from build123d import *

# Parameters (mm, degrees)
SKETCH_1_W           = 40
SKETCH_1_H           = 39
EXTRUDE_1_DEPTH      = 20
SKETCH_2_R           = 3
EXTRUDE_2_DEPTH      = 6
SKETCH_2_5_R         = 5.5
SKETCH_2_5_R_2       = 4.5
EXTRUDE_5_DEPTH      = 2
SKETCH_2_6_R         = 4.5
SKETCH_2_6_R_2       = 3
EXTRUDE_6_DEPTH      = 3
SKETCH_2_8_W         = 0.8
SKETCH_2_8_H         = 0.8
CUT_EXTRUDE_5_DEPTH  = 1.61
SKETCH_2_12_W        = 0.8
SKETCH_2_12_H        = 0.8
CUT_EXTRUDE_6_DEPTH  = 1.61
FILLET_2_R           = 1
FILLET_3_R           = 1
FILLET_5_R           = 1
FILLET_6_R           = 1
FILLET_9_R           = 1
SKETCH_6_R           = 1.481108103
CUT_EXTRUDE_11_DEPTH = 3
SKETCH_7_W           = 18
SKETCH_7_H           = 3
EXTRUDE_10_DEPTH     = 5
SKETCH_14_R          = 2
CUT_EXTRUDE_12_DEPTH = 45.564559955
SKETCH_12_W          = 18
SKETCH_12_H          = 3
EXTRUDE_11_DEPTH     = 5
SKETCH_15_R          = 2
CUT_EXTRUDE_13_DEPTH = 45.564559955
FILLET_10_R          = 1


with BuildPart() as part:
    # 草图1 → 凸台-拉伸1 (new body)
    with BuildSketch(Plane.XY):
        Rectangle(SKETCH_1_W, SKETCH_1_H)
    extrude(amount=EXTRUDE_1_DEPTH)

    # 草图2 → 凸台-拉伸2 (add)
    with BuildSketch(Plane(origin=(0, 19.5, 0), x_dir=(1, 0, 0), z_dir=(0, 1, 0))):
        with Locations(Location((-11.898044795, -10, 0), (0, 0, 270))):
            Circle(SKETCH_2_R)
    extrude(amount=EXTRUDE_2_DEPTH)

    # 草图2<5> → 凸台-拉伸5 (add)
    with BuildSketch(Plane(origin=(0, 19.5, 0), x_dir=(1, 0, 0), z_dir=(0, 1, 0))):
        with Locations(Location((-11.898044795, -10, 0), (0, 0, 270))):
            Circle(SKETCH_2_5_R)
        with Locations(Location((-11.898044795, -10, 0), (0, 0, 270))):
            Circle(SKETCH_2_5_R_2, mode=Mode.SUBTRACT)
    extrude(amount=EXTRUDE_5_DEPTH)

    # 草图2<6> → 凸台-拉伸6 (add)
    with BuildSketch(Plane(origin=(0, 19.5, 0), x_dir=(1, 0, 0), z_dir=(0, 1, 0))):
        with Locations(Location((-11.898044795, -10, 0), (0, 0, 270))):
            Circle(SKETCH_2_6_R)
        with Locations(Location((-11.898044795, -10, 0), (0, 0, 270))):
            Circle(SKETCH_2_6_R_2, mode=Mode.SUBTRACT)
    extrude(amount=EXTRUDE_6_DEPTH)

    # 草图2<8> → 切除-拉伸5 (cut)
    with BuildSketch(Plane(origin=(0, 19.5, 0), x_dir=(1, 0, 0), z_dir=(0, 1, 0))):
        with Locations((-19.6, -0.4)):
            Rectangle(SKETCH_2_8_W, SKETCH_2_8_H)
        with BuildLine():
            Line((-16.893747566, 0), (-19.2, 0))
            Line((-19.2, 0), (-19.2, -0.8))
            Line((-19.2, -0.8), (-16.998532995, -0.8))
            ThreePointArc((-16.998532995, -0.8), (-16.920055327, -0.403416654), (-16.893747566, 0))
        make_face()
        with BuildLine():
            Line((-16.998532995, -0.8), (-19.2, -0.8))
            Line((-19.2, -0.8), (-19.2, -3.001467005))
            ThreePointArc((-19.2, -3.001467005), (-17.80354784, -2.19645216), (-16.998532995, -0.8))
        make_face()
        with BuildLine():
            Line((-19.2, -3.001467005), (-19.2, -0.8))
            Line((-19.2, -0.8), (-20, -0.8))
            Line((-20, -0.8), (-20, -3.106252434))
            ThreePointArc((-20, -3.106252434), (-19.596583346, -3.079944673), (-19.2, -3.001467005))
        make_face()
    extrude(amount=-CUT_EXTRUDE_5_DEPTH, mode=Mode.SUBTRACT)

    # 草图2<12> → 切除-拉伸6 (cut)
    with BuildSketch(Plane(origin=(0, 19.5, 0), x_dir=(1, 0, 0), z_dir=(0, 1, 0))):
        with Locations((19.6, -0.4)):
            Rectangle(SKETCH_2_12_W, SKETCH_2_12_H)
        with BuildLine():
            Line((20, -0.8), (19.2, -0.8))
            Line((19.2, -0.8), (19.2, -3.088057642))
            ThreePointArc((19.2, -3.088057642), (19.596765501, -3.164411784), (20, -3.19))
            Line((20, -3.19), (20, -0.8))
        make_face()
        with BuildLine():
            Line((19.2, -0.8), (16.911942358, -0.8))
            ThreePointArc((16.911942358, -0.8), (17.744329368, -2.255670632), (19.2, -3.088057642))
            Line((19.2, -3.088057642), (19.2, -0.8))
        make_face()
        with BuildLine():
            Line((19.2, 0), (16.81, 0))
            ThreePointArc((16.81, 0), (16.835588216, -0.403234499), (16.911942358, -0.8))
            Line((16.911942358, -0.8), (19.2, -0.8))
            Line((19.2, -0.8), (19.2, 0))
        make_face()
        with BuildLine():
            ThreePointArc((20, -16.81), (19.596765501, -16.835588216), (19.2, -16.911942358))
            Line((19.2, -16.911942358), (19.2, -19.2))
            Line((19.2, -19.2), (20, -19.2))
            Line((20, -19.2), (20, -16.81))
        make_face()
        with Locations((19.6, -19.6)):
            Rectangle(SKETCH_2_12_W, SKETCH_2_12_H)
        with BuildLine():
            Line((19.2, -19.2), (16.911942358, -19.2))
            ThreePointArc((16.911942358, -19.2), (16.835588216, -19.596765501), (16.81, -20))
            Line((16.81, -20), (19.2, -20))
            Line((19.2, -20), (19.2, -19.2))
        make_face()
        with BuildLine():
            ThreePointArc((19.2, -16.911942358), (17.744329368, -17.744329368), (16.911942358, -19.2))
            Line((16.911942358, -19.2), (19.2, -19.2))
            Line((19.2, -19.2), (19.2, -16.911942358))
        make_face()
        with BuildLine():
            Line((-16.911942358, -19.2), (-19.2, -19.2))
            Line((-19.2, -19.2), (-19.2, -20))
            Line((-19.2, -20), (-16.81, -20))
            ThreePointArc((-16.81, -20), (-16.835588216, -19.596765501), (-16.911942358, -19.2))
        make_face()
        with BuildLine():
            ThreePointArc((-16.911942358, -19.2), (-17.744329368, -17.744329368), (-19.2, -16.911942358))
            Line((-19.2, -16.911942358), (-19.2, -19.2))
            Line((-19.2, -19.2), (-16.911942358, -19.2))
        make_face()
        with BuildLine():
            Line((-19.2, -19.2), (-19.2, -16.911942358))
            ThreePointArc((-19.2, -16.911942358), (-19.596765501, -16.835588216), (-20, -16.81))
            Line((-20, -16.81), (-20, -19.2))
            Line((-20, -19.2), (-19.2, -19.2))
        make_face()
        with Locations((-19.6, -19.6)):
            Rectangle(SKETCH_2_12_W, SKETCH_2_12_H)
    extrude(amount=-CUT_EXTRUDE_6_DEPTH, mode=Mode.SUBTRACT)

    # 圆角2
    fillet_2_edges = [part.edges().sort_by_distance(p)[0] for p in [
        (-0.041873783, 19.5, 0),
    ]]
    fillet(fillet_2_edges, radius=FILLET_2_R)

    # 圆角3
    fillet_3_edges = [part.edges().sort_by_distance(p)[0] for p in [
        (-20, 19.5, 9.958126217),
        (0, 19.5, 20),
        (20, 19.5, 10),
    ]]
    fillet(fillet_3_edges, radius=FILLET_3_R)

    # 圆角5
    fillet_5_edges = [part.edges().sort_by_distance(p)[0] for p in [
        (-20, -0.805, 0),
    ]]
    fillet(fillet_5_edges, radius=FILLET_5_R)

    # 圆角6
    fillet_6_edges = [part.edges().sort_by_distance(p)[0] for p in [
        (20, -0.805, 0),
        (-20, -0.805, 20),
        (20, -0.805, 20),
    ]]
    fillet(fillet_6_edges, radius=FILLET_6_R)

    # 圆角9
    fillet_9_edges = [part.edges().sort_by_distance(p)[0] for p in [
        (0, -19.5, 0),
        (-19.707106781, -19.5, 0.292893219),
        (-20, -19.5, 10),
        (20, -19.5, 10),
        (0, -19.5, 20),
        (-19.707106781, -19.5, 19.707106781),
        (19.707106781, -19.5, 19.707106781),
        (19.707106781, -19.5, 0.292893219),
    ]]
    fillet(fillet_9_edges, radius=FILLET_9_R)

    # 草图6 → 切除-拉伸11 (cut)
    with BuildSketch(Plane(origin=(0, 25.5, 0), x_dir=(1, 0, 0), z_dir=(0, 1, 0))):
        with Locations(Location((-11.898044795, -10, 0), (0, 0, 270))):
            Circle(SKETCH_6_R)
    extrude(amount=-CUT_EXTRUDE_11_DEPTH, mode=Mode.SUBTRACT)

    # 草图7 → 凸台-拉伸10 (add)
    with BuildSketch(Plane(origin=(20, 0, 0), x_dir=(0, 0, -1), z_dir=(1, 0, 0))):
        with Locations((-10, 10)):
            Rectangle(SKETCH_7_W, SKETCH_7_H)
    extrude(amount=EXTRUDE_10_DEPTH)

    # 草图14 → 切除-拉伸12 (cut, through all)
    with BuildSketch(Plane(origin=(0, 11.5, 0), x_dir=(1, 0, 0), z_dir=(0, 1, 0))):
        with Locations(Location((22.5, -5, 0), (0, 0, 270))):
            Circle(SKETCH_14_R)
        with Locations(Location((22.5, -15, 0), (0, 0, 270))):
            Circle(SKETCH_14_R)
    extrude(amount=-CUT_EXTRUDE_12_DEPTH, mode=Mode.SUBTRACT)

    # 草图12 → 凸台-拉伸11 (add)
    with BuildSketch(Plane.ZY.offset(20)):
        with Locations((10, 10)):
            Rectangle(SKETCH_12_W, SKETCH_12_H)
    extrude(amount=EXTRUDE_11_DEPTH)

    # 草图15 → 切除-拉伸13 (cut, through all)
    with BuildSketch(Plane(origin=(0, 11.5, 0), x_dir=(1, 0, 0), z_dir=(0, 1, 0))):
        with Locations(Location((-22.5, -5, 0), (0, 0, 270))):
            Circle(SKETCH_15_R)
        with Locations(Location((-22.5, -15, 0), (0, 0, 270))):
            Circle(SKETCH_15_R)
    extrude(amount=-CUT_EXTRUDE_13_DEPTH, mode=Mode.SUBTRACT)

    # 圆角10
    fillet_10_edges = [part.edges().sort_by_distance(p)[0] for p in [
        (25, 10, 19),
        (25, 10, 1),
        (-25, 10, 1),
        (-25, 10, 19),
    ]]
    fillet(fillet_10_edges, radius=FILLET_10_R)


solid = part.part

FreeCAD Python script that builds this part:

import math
import FreeCAD as App
import Part
import Sketcher


def edges_at(feature, points):
    """Names of the edges that pass closest to the given points."""
    edges = feature.Shape.Edges
    near = lambda p: min(range(len(edges)), key=lambda i: edges[i].distToShape(Part.Vertex(*p))[0])
    return sorted({f"Edge{near(p) + 1}" for p in points})

doc = App.newDocument("Part")
params = doc.addObject("Spreadsheet::Sheet", "Params")
for row, (alias, value) in enumerate([
    ("sketch1_width", "40 mm"),
    ("sketch1_height", "39 mm"),
    ("pad1_length", "20 mm"),
    ("sketch2_diameter", "6 mm"),
    ("pad2_length", "6 mm"),
    ("sketch3_diameter", "11 mm"),
    ("sketch3_diameter2", "9 mm"),
    ("pad3_length", "2 mm"),
    ("sketch4_diameter", "9 mm"),
    ("sketch4_diameter2", "6 mm"),
    ("pad4_length", "3 mm"),
    ("pocket1_length", "1.61 mm"),
    ("sketch6_radius", "3.19 mm"),
    ("pocket2_length", "1.61 mm"),
    ("fillet_radius", "1 mm"),
    ("fillet2_radius", "1 mm"),
    ("fillet3_radius", "1 mm"),
    ("fillet4_radius", "1 mm"),
    ("fillet5_radius", "1 mm"),
    ("pocket3_length", "3 mm"),
    ("sketch8_width", "3 mm"),
    ("sketch8_height", "18 mm"),
    ("pad5_length", "5 mm"),
    ("sketch9_diameter", "4 mm"),
    ("sketch10_width", "3 mm"),
    ("sketch10_height", "18 mm"),
    ("pad6_length", "5 mm"),
    ("sketch11_diameter", "4 mm"),
    ("fillet6_radius", "1 mm"),
], start=1):
    params.set(f"A{row}", alias)
    params.set(f"B{row}", "=" + value)
    params.setAlias(f"B{row}", alias)

body = doc.addObject("PartDesign::Body", "Body")

# Sketch on XY plane
sketch1 = body.newObject("Sketcher::SketchObject", "Sketch")
sketch1.AttachmentSupport = (doc.getObject("XY_Plane"), [""])
sketch1.MapMode = "FlatFace"
sketch1.addGeometry(Part.LineSegment(App.Vector(-20, 20, 0), App.Vector(-20, -20, 0)), False)
sketch1.addGeometry(Part.LineSegment(App.Vector(-20, -20, 0), App.Vector(20, -20, 0)), False)
sketch1.addGeometry(Part.LineSegment(App.Vector(20, -20, 0), App.Vector(20, 20, 0)), False)
sketch1.addGeometry(Part.LineSegment(App.Vector(20, 20, 0), App.Vector(-20, 20, 0)), False)
sketch1.addConstraint(Sketcher.Constraint("Coincident", 0, 2, 1, 1))
sketch1.addConstraint(Sketcher.Constraint("Coincident", 1, 2, 2, 1))
sketch1.addConstraint(Sketcher.Constraint("Coincident", 2, 2, 3, 1))
sketch1.addConstraint(Sketcher.Constraint("Coincident", 3, 2, 0, 1))
sketch1.addConstraint(Sketcher.Constraint("Vertical", 0))
sketch1.addConstraint(Sketcher.Constraint("Horizontal", 1))
sketch1.addConstraint(Sketcher.Constraint("Vertical", 2))
sketch1.addConstraint(Sketcher.Constraint("Horizontal", 3))
sketch1.addConstraint(Sketcher.Constraint("Symmetric", 0, 2, 2, 2, -1, 1))
sketch1.addConstraint(Sketcher.Constraint("DistanceX", 1, 1, 1, 2, 40.0))
sketch1.addConstraint(Sketcher.Constraint("DistanceY", 0, 2, 0, 1, 39.0))
sketch1.setExpression("Constraints[9]", "Params.sketch1_width")
sketch1.setExpression("Constraints[10]", "Params.sketch1_height")
pad1 = body.newObject("PartDesign::Pad", "Pad")
pad1.Profile = sketch1
pad1.setExpression("Length", "Params.pad1_length")

# Sketch on XZ plane
sketch2 = body.newObject("Sketcher::SketchObject", "Sketch001")
sketch2.AttachmentSupport = (doc.getObject("XZ_Plane"), [""])
sketch2.MapMode = "FlatFace"
sketch2.AttachmentOffset = App.Placement(App.Vector(0, 0, -19.5), App.Rotation())
sketch2.addGeometry(Part.Circle(App.Vector(-11.9, 10, 0), App.Vector(0, 0, 1), 3), False)
sketch2.addConstraint(Sketcher.Constraint("Diameter", 0, 6.0))
sketch2.addConstraint(Sketcher.Constraint("DistanceY", -1, 1, 0, 3, 10.0))
sketch2.addConstraint(Sketcher.Constraint("DistanceX", 0, 3, -1, 1, 11.898045))
sketch2.setExpression("Constraints[0]", "Params.sketch2_diameter")
pad2 = body.newObject("PartDesign::Pad", "Pad001")
pad2.Profile = sketch2
pad2.setExpression("Length", "Params.pad2_length")
pad2.Reversed = True

# Sketch on XZ plane
sketch3 = body.newObject("Sketcher::SketchObject", "Sketch002")
sketch3.AttachmentSupport = (doc.getObject("XZ_Plane"), [""])
sketch3.MapMode = "FlatFace"
sketch3.AttachmentOffset = App.Placement(App.Vector(0, 0, -19.5), App.Rotation())
sketch3.addGeometry(Part.Circle(App.Vector(-11.9, 10, 0), App.Vector(0, 0, 1), 5.5), False)
sketch3.addGeometry(Part.Circle(App.Vector(-11.9, 10, 0), App.Vector(0, 0, 1), 4.5), False)
sketch3.addConstraint(Sketcher.Constraint("Coincident", 1, 3, 0, 3))
sketch3.addConstraint(Sketcher.Constraint("Diameter", 0, 11.0))
sketch3.addConstraint(Sketcher.Constraint("Diameter", 1, 9.0))
sketch3.addConstraint(Sketcher.Constraint("DistanceY", -1, 1, 0, 3, 10.0))
sketch3.addConstraint(Sketcher.Constraint("DistanceX", 0, 3, -1, 1, 11.898045))
sketch3.setExpression("Constraints[1]", "Params.sketch3_diameter")
sketch3.setExpression("Constraints[2]", "Params.sketch3_diameter2")
pad3 = body.newObject("PartDesign::Pad", "Pad002")
pad3.Profile = sketch3
pad3.setExpression("Length", "Params.pad3_length")
pad3.Reversed = True

# Sketch on XZ plane
sketch4 = body.newObject("Sketcher::SketchObject", "Sketch003")
sketch4.AttachmentSupport = (doc.getObject("XZ_Plane"), [""])
sketch4.MapMode = "FlatFace"
sketch4.AttachmentOffset = App.Placement(App.Vector(0, 0, -19.5), App.Rotation())
sketch4.addGeometry(Part.Circle(App.Vector(-11.9, 10, 0), App.Vector(0, 0, 1), 4.5), False)
sketch4.addGeometry(Part.Circle(App.Vector(-11.9, 10, 0), App.Vector(0, 0, 1), 3), False)
sketch4.addConstraint(Sketcher.Constraint("Coincident", 1, 3, 0, 3))
sketch4.addConstraint(Sketcher.Constraint("Diameter", 0, 9.0))
sketch4.addConstraint(Sketcher.Constraint("Diameter", 1, 6.0))
sketch4.addConstraint(Sketcher.Constraint("DistanceY", -1, 1, 0, 3, 10.0))
sketch4.addConstraint(Sketcher.Constraint("DistanceX", 0, 3, -1, 1, 11.898045))
sketch4.setExpression("Constraints[1]", "Params.sketch4_diameter")
sketch4.setExpression("Constraints[2]", "Params.sketch4_diameter2")
pad4 = body.newObject("PartDesign::Pad", "Pad003")
pad4.Profile = sketch4
pad4.setExpression("Length", "Params.pad4_length")
pad4.Reversed = True

# Sketch on XZ plane
sketch5 = body.newObject("Sketcher::SketchObject", "Sketch004")
sketch5.AttachmentSupport = (doc.getObject("XZ_Plane"), [""])
sketch5.MapMode = "FlatFace"
sketch5.AttachmentOffset = App.Placement(App.Vector(0, 0, -19.5), App.Rotation())
sketch5.addGeometry(Part.LineSegment(App.Vector(-20, 0, 0), App.Vector(-20, 3.1, 0)), False)
sketch5.addGeometry(Part.ArcOfCircle(Part.Circle(App.Vector(-20, 0, 0), App.Vector(0, 0, 1), 3.1), math.radians(75.08), math.radians(90)), False)
sketch5.addGeometry(Part.ArcOfCircle(Part.Circle(App.Vector(-20, 0, 0), App.Vector(0, 0, 1), 3.1), math.radians(15), math.radians(75)), False)
sketch5.addGeometry(Part.ArcOfCircle(Part.Circle(App.Vector(-20, 0, 0), App.Vector(0, 0, 1), 3.1), math.radians(0), math.radians(14.92)), False)
sketch5.addGeometry(Part.LineSegment(App.Vector(-16.9, 0, 0), App.Vector(-20, 0, 0)), False)
sketch5.addConstraint(Sketcher.Constraint("Coincident", 0, 2, 1, 2))
sketch5.addConstraint(Sketcher.Constraint("Tangent", 1, 1, 2, 2))
sketch5.addConstraint(Sketcher.Constraint("Tangent", 2, 1, 3, 2))
sketch5.addConstraint(Sketcher.Constraint("Coincident", 3, 1, 4, 1))
sketch5.addConstraint(Sketcher.Constraint("Coincident", 4, 2, 0, 1))
sketch5.addConstraint(Sketcher.Constraint("Vertical", 0))
sketch5.addConstraint(Sketcher.Constraint("Horizontal", 4))
sketch5.addConstraint(Sketcher.Constraint("Coincident", 3, 3, 1, 3))
sketch5.addConstraint(Sketcher.Constraint("Coincident", 4, 2, 1, 3))
sketch5.addConstraint(Sketcher.Constraint("PointOnObject", 1, 3, -1))
sketch5.addConstraint(Sketcher.Constraint("DistanceX", 1, 3, -1, 1, 20.0))
sketch5.addConstraint(Sketcher.Constraint("DistanceX", 1, 1, -1, 1, 19.2))
sketch5.addConstraint(Sketcher.Constraint("DistanceY", -1, 1, 2, 1, 0.8))
sketch5.addConstraint(Sketcher.Constraint("Radius", 1, 3.106252))
pocket1 = body.newObject("PartDesign::Pocket", "Pocket")
pocket1.Profile = sketch5
pocket1.setExpression("Length", "Params.pocket1_length")
pocket1.Reversed = True

# Sketch on XZ plane
sketch6 = body.newObject("Sketcher::SketchObject", "Sketch005")
sketch6.AttachmentSupport = (doc.getObject("XZ_Plane"), [""])
sketch6.MapMode = "FlatFace"
sketch6.AttachmentOffset = App.Placement(App.Vector(0, 0, -19.5), App.Rotation())
sketch6.addGeometry(Part.ArcOfCircle(Part.Circle(App.Vector(20, 0, 0), App.Vector(0, 0, 1), 3.2), math.radians(105), math.radians(165)), False)
sketch6.addGeometry(Part.ArcOfCircle(Part.Circle(App.Vector(20, 0, 0), App.Vector(0, 0, 1), 3.2), math.radians(90), math.radians(104.52)), False)
sketch6.addGeometry(Part.LineSegment(App.Vector(20, 3.2, 0), App.Vector(20, 0, 0)), False)
sketch6.addGeometry(Part.LineSegment(App.Vector(20, 0, 0), App.Vector(16.8, 0, 0)), False)
sketch6.addGeometry(Part.ArcOfCircle(Part.Circle(App.Vector(20, 0, 0), App.Vector(0, 0, 1), 3.2), math.radians(165.48), math.radians(180)), False)
sketch6.addGeometry(Part.ArcOfCircle(Part.Circle(App.Vector(20, 20, 0), App.Vector(0, 0, 1), 3.2), math.radians(-104.52), math.radians(-90)), False)
sketch6.addGeometry(Part.ArcOfCircle(Part.Circle(App.Vector(20, 20, 0), App.Vector(0, 0, 1), 3.2), math.radians(-165), math.radians(-105)), False)
sketch6.addGeometry(Part.ArcOfCircle(Part.Circle(App.Vector(20, 20, 0), App.Vector(0, 0, 1), 3.2), math.radians(180), math.radians(194.52)), False)
sketch6.addGeometry(Part.LineSegment(App.Vector(16.8, 20, 0), App.Vector(20, 20, 0)), False)
sketch6.addGeometry(Part.LineSegment(App.Vector(20, 20, 0), App.Vector(20, 16.8, 0)), False)
sketch6.addGeometry(Part.ArcOfCircle(Part.Circle(App.Vector(-20, 20, 0), App.Vector(0, 0, 1), 3.2), math.radians(-14.52), math.radians(0)), False)
sketch6.addGeometry(Part.ArcOfCircle(Part.Circle(App.Vector(-20, 20, 0), App.Vector(0, 0, 1), 3.2), math.radians(-75), math.radians(-15)), False)
sketch6.addGeometry(Part.ArcOfCircle(Part.Circle(App.Vector(-20, 20, 0), App.Vector(0, 0, 1), 3.2), math.radians(-90), math.radians(-75.48)), False)
sketch6.addGeometry(Part.LineSegment(App.Vector(-20, 16.8, 0), App.Vector(-20, 20, 0)), False)
sketch6.addGeometry(Part.LineSegment(App.Vector(-20, 20, 0), App.Vector(-16.8, 20, 0)), False)
sketch6.addConstraint(Sketcher.Constraint("Tangent", 0, 1, 1, 2))
sketch6.addConstraint(Sketcher.Constraint("Coincident", 1, 1, 2, 1))
sketch6.addConstraint(Sketcher.Constraint("Coincident", 2, 2, 3, 1))
sketch6.addConstraint(Sketcher.Constraint("Coincident", 3, 2, 4, 2))
sketch6.addConstraint(Sketcher.Constraint("Tangent", 4, 1, 0, 2))
sketch6.addConstraint(Sketcher.Constraint("Tangent", 5, 1, 6, 2))
sketch6.addConstraint(Sketcher.Constraint("Tangent", 6, 1, 7, 2))
sketch6.addConstraint(Sketcher.Constraint("Coincident", 7, 1, 8, 1))
sketch6.addConstraint(Sketcher.Constraint("Coincident", 8, 2, 9, 1))
sketch6.addConstraint(Sketcher.Constraint("Coincident", 9, 2, 5, 2))
sketch6.addConstraint(Sketcher.Constraint("Tangent", 10, 1, 11, 2))
sketch6.addConstraint(Sketcher.Constraint("Tangent", 11, 1, 12, 2))
sketch6.addConstraint(Sketcher.Constraint("Coincident", 12, 1, 13, 1))
sketch6.addConstraint(Sketcher.Constraint("Coincident", 13, 2, 14, 1))
sketch6.addConstraint(Sketcher.Constraint("Coincident", 14, 2, 10, 2))
sketch6.addConstraint(Sketcher.Constraint("Vertical", 2))
sketch6.addConstraint(Sketcher.Constraint("Horizontal", 3))
sketch6.addConstraint(Sketcher.Constraint("Horizontal", 8))
sketch6.addConstraint(Sketcher.Constraint("Vertical", 9))
sketch6.addConstraint(Sketcher.Constraint("Vertical", 13))
sketch6.addConstraint(Sketcher.Constraint("Horizontal", 14))
sketch6.addConstraint(Sketcher.Constraint("Coincident", 7, 3, 5, 3))
sketch6.addConstraint(Sketcher.Constraint("Coincident", 12, 3, 10, 3))
sketch6.addConstraint(Sketcher.Constraint("Coincident", 2, 2, 0, 3))
sketch6.addConstraint(Sketcher.Constraint("Coincident", 8, 2, 5, 3))
sketch6.addConstraint(Sketcher.Constraint("Coincident", 13, 2, 10, 3))
sketch6.addConstraint(Sketcher.Constraint("Equal", 0, 1))
sketch6.addConstraint(Sketcher.Constraint("Equal", 1, 4))
sketch6.addConstraint(Sketcher.Constraint("Equal", 4, 5))
sketch6.addConstraint(Sketcher.Constraint("Equal", 7, 10))
sketch6.addConstraint(Sketcher.Constraint("Symmetric", 5, 3, 10, 3, -2))
sketch6.addConstraint(Sketcher.Constraint("PointOnObject", 0, 3, -1))
sketch6.addConstraint(Sketcher.Constraint("Horizontal", 6, 1, 10, 1))
sketch6.addConstraint(Sketcher.Constraint("Horizontal", 5, 1, 11, 1))
sketch6.addConstraint(Sketcher.Constraint("Vertical", 4, 3, 5, 3))
sketch6.addConstraint(Sketcher.Constraint("Vertical", 0, 1, 5, 1))
sketch6.addConstraint(Sketcher.Constraint("Vertical", 4, 1, 6, 1))
sketch6.addConstraint(Sketcher.Constraint("Radius", 0, 3.19))
sketch6.addConstraint(Sketcher.Constraint("DistanceX", -1, 1, 0, 3, 20.0))
sketch6.addConstraint(Sketcher.Constraint("DistanceY", -1, 1, 5, 3, 20.0))
sketch6.addConstraint(Sketcher.Constraint("DistanceX", -1, 1, 0, 1, 19.2))
sketch6.addConstraint(Sketcher.Constraint("DistanceY", -1, 1, 4, 1, 0.8))
sketch6.setExpression("Constraints[37]", "Params.sketch6_radius")
pocket2 = body.newObject("PartDesign::Pocket", "Pocket001")
pocket2.Profile = sketch6
pocket2.setExpression("Length", "Params.pocket2_length")
pocket2.Reversed = True
doc.recompute()

fillet = body.newObject("PartDesign::Fillet", "Fillet")
fillet.Base = (pocket2, edges_at(pocket2, [(-0.042, 19.5, 0)]))
fillet.setExpression("Radius", "Params.fillet_radius")
doc.recompute()

fillet2 = body.newObject("PartDesign::Fillet", "Fillet001")
fillet2.Base = (fillet, edges_at(fillet, [(-20, 19.5, 9.958), (0, 19.5, 20), (20, 19.5, 10)]))
fillet2.setExpression("Radius", "Params.fillet2_radius")
doc.recompute()

fillet3 = body.newObject("PartDesign::Fillet", "Fillet002")
fillet3.Base = (fillet2, edges_at(fillet2, [(-20, -0.805, 0)]))
fillet3.setExpression("Radius", "Params.fillet3_radius")
doc.recompute()

fillet4 = body.newObject("PartDesign::Fillet", "Fillet003")
fillet4.Base = (fillet3, edges_at(fillet3, [(20, -0.805, 0), (-20, -0.805, 20), (20, -0.805, 20)]))
fillet4.setExpression("Radius", "Params.fillet4_radius")
doc.recompute()

fillet5 = body.newObject("PartDesign::Fillet", "Fillet004")
fillet5.Base = (fillet4, edges_at(fillet4, [
    (0, -19.5, 0),
    (-19.707, -19.5, 0.293),
    (-20, -19.5, 10),
    (20, -19.5, 10),
    (0, -19.5, 20),
    (-19.707, -19.5, 19.707),
    (19.707, -19.5, 19.707),
    (19.707, -19.5, 0.293),
]))
fillet5.setExpression("Radius", "Params.fillet5_radius")

# Sketch on XZ plane
sketch7 = body.newObject("Sketcher::SketchObject", "Sketch006")
sketch7.AttachmentSupport = (doc.getObject("XZ_Plane"), [""])
sketch7.MapMode = "FlatFace"
sketch7.AttachmentOffset = App.Placement(App.Vector(0, 0, -25.5), App.Rotation())
sketch7.addGeometry(Part.Circle(App.Vector(-11.9, 10, 0), App.Vector(0, 0, 1), 1.5), False)
sketch7.addConstraint(Sketcher.Constraint("DistanceY", -1, 1, 0, 3, 10.0))
sketch7.addConstraint(Sketcher.Constraint("Diameter", 0, 2.962216))
sketch7.addConstraint(Sketcher.Constraint("DistanceX", 0, 3, -1, 1, 11.898045))
pocket3 = body.newObject("PartDesign::Pocket", "Pocket002")
pocket3.Profile = sketch7
pocket3.setExpression("Length", "Params.pocket3_length")
pocket3.Reversed = True

# Sketch on YZ plane
sketch8 = body.newObject("Sketcher::SketchObject", "Sketch007")
sketch8.AttachmentSupport = (doc.getObject("YZ_Plane"), [""])
sketch8.MapMode = "FlatFace"
sketch8.AttachmentOffset = App.Placement(App.Vector(0, 0, 20), App.Rotation())
sketch8.addGeometry(Part.LineSegment(App.Vector(11.5, 19, 0), App.Vector(8.5, 19, 0)), False)
sketch8.addGeometry(Part.LineSegment(App.Vector(8.5, 19, 0), App.Vector(8.5, 1, 0)), False)
sketch8.addGeometry(Part.LineSegment(App.Vector(8.5, 1, 0), App.Vector(11.5, 1, 0)), False)
sketch8.addGeometry(Part.LineSegment(App.Vector(11.5, 1, 0), App.Vector(11.5, 19, 0)), False)
sketch8.addConstraint(Sketcher.Constraint("Coincident", 0, 2, 1, 1))
sketch8.addConstraint(Sketcher.Constraint("Coincident", 1, 2, 2, 1))
sketch8.addConstraint(Sketcher.Constraint("Coincident", 2, 2, 3, 1))
sketch8.addConstraint(Sketcher.Constraint("Coincident", 3, 2, 0, 1))
sketch8.addConstraint(Sketcher.Constraint("Horizontal", 0))
sketch8.addConstraint(Sketcher.Constraint("Vertical", 1))
sketch8.addConstraint(Sketcher.Constraint("Horizontal", 2))
sketch8.addConstraint(Sketcher.Constraint("Vertical", 3))
sketch8.addConstraint(Sketcher.Constraint("DistanceX", 0, 2, 0, 1, 3.0))
sketch8.addConstraint(Sketcher.Constraint("DistanceY", 1, 2, 1, 1, 18.0))
sketch8.addConstraint(Sketcher.Constraint("DistanceY", -1, 1, 0, 2, 19.0))
sketch8.addConstraint(Sketcher.Constraint("DistanceX", -1, 1, 0, 2, 8.5))
sketch8.setExpression("Constraints[8]", "Params.sketch8_width")
sketch8.setExpression("Constraints[9]", "Params.sketch8_height")
pad5 = body.newObject("PartDesign::Pad", "Pad004")
pad5.Profile = sketch8
pad5.setExpression("Length", "Params.pad5_length")

# Sketch on XZ plane
sketch9 = body.newObject("Sketcher::SketchObject", "Sketch008")
sketch9.AttachmentSupport = (doc.getObject("XZ_Plane"), [""])
sketch9.MapMode = "FlatFace"
sketch9.AttachmentOffset = App.Placement(App.Vector(0, 0, -11.5), App.Rotation())
sketch9.addGeometry(Part.Circle(App.Vector(22.5, 5, 0), App.Vector(0, 0, 1), 2), False)
sketch9.addGeometry(Part.Circle(App.Vector(22.5, 15, 0), App.Vector(0, 0, 1), 2), False)
sketch9.addConstraint(Sketcher.Constraint("Equal", 0, 1))
sketch9.addConstraint(Sketcher.Constraint("Vertical", 0, 3, 1, 3))
sketch9.addConstraint(Sketcher.Constraint("Diameter", 0, 4.0))
sketch9.addConstraint(Sketcher.Constraint("DistanceY", -1, 1, 0, 3, 5.0))
sketch9.addConstraint(Sketcher.Constraint("DistanceY", -1, 1, 1, 3, 15.0))
sketch9.addConstraint(Sketcher.Constraint("DistanceX", -1, 1, 0, 3, 22.5))
sketch9.setExpression("Constraints[2]", "Params.sketch9_diameter")
pocket4 = body.newObject("PartDesign::Pocket", "Pocket003")
pocket4.Profile = sketch9
pocket4.Type = "ThroughAll"
pocket4.Reversed = True

# Sketch on YZ plane
sketch10 = body.newObject("Sketcher::SketchObject", "Sketch009")
sketch10.AttachmentSupport = (doc.getObject("YZ_Plane"), [""])
sketch10.MapMode = "FlatFace"
sketch10.AttachmentOffset = App.Placement(App.Vector(0, 0, -20), App.Rotation())
sketch10.addGeometry(Part.LineSegment(App.Vector(11.5, 1, 0), App.Vector(8.5, 1, 0)), False)
sketch10.addGeometry(Part.LineSegment(App.Vector(8.5, 1, 0), App.Vector(8.5, 19, 0)), False)
sketch10.addGeometry(Part.LineSegment(App.Vector(8.5, 19, 0), App.Vector(11.5, 19, 0)), False)
sketch10.addGeometry(Part.LineSegment(App.Vector(11.5, 19, 0), App.Vector(11.5, 1, 0)), False)
sketch10.addConstraint(Sketcher.Constraint("Coincident", 0, 2, 1, 1))
sketch10.addConstraint(Sketcher.Constraint("Coincident", 1, 2, 2, 1))
sketch10.addConstraint(Sketcher.Constraint("Coincident", 2, 2, 3, 1))
sketch10.addConstraint(Sketcher.Constraint("Coincident", 3, 2, 0, 1))
sketch10.addConstraint(Sketcher.Constraint("Horizontal", 0))
sketch10.addConstraint(Sketcher.Constraint("Vertical", 1))
sketch10.addConstraint(Sketcher.Constraint("Horizontal", 2))
sketch10.addConstraint(Sketcher.Constraint("Vertical", 3))
sketch10.addConstraint(Sketcher.Constraint("DistanceX", 0, 2, 0, 1, 3.0))
sketch10.addConstraint(Sketcher.Constraint("DistanceY", 1, 1, 1, 2, 18.0))
sketch10.addConstraint(Sketcher.Constraint("DistanceY", -1, 1, 0, 2, 1.0))
sketch10.addConstraint(Sketcher.Constraint("DistanceX", -1, 1, 0, 2, 8.5))
sketch10.setExpression("Constraints[8]", "Params.sketch10_width")
sketch10.setExpression("Constraints[9]", "Params.sketch10_height")
pad6 = body.newObject("PartDesign::Pad", "Pad005")
pad6.Profile = sketch10
pad6.setExpression("Length", "Params.pad6_length")
pad6.Reversed = True

# Sketch on XZ plane
sketch11 = body.newObject("Sketcher::SketchObject", "Sketch010")
sketch11.AttachmentSupport = (doc.getObject("XZ_Plane"), [""])
sketch11.MapMode = "FlatFace"
sketch11.AttachmentOffset = App.Placement(App.Vector(0, 0, -11.5), App.Rotation())
sketch11.addGeometry(Part.Circle(App.Vector(-22.5, 5, 0), App.Vector(0, 0, 1), 2), False)
sketch11.addGeometry(Part.Circle(App.Vector(-22.5, 15, 0), App.Vector(0, 0, 1), 2), False)
sketch11.addConstraint(Sketcher.Constraint("Equal", 0, 1))
sketch11.addConstraint(Sketcher.Constraint("Vertical", 0, 3, 1, 3))
sketch11.addConstraint(Sketcher.Constraint("Diameter", 0, 4.0))
sketch11.addConstraint(Sketcher.Constraint("DistanceY", -1, 1, 0, 3, 5.0))
sketch11.addConstraint(Sketcher.Constraint("DistanceY", -1, 1, 1, 3, 15.0))
sketch11.addConstraint(Sketcher.Constraint("DistanceX", 0, 3, -1, 1, 22.5))
sketch11.setExpression("Constraints[2]", "Params.sketch11_diameter")
pocket5 = body.newObject("PartDesign::Pocket", "Pocket004")
pocket5.Profile = sketch11
pocket5.Type = "ThroughAll"
pocket5.Reversed = True
doc.recompute()

fillet6 = body.newObject("PartDesign::Fillet", "Fillet005")
fillet6.Base = (pocket5, edges_at(pocket5, [
    (25, 10, 19),
    (25, 10, 1),
    (-25, 10, 1),
    (-25, 10, 19),
]))
fillet6.setExpression("Radius", "Params.fillet6_radius")

doc.recompute()
